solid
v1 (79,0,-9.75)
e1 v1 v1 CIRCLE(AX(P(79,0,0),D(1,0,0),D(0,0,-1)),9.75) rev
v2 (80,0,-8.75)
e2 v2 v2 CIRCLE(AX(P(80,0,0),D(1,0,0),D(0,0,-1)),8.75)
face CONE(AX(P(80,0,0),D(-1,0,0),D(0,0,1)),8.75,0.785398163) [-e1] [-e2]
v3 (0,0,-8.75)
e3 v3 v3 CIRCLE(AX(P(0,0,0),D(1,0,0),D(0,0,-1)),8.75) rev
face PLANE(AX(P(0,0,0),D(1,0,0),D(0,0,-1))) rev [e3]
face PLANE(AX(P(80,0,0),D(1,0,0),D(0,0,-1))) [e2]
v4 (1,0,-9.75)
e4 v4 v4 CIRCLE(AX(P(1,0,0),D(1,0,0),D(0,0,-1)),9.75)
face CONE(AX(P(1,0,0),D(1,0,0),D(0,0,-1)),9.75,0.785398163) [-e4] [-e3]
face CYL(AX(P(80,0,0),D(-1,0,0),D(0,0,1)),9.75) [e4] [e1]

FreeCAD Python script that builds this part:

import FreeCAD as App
import Part
import Sketcher
from FreeCAD import Vector
Q = App.Units.Quantity


def edges_at(feature, points):
    """Names of the edges that pass closest to the given points."""
    edges = feature.Shape.Edges
    near = lambda p: min(range(len(edges)), key=lambda i: edges[i].distToShape(Part.Vertex(*p))[0])
    return sorted({f"Edge{near(p) + 1}" for p in points})

doc = App.newDocument("Part")
body = doc.addObject("PartDesign::Body", "Body")

sketch1 = body.newObject("Sketcher::SketchObject", "Sketch")
sketch1.AttachmentSupport = (doc.getObject("YZ_Plane"), [""])
sketch1.MapMode = "FlatFace"
sketch1.addGeometry(Part.Circle(Vector(0, 0, 0), Vector(0, 0, 1), 10), False)
sketch1.addConstraint(Sketcher.Constraint("Coincident", 0, 3, -1, 1))
sketch1.addConstraint(Sketcher.Constraint("Diameter", 0, Q("19.5 mm")))
pad1 = body.newObject("PartDesign::Pad", "Pad")
pad1.Profile = sketch1
pad1.Length = 80
doc.recompute()

chamfer = body.newObject("PartDesign::Chamfer", "Chamfer")
chamfer.Base = (pad1, edges_at(pad1, [(0, 0, 9.75), (80, 0, 9.75)]))
chamfer.Size = 1

doc.recompute()
